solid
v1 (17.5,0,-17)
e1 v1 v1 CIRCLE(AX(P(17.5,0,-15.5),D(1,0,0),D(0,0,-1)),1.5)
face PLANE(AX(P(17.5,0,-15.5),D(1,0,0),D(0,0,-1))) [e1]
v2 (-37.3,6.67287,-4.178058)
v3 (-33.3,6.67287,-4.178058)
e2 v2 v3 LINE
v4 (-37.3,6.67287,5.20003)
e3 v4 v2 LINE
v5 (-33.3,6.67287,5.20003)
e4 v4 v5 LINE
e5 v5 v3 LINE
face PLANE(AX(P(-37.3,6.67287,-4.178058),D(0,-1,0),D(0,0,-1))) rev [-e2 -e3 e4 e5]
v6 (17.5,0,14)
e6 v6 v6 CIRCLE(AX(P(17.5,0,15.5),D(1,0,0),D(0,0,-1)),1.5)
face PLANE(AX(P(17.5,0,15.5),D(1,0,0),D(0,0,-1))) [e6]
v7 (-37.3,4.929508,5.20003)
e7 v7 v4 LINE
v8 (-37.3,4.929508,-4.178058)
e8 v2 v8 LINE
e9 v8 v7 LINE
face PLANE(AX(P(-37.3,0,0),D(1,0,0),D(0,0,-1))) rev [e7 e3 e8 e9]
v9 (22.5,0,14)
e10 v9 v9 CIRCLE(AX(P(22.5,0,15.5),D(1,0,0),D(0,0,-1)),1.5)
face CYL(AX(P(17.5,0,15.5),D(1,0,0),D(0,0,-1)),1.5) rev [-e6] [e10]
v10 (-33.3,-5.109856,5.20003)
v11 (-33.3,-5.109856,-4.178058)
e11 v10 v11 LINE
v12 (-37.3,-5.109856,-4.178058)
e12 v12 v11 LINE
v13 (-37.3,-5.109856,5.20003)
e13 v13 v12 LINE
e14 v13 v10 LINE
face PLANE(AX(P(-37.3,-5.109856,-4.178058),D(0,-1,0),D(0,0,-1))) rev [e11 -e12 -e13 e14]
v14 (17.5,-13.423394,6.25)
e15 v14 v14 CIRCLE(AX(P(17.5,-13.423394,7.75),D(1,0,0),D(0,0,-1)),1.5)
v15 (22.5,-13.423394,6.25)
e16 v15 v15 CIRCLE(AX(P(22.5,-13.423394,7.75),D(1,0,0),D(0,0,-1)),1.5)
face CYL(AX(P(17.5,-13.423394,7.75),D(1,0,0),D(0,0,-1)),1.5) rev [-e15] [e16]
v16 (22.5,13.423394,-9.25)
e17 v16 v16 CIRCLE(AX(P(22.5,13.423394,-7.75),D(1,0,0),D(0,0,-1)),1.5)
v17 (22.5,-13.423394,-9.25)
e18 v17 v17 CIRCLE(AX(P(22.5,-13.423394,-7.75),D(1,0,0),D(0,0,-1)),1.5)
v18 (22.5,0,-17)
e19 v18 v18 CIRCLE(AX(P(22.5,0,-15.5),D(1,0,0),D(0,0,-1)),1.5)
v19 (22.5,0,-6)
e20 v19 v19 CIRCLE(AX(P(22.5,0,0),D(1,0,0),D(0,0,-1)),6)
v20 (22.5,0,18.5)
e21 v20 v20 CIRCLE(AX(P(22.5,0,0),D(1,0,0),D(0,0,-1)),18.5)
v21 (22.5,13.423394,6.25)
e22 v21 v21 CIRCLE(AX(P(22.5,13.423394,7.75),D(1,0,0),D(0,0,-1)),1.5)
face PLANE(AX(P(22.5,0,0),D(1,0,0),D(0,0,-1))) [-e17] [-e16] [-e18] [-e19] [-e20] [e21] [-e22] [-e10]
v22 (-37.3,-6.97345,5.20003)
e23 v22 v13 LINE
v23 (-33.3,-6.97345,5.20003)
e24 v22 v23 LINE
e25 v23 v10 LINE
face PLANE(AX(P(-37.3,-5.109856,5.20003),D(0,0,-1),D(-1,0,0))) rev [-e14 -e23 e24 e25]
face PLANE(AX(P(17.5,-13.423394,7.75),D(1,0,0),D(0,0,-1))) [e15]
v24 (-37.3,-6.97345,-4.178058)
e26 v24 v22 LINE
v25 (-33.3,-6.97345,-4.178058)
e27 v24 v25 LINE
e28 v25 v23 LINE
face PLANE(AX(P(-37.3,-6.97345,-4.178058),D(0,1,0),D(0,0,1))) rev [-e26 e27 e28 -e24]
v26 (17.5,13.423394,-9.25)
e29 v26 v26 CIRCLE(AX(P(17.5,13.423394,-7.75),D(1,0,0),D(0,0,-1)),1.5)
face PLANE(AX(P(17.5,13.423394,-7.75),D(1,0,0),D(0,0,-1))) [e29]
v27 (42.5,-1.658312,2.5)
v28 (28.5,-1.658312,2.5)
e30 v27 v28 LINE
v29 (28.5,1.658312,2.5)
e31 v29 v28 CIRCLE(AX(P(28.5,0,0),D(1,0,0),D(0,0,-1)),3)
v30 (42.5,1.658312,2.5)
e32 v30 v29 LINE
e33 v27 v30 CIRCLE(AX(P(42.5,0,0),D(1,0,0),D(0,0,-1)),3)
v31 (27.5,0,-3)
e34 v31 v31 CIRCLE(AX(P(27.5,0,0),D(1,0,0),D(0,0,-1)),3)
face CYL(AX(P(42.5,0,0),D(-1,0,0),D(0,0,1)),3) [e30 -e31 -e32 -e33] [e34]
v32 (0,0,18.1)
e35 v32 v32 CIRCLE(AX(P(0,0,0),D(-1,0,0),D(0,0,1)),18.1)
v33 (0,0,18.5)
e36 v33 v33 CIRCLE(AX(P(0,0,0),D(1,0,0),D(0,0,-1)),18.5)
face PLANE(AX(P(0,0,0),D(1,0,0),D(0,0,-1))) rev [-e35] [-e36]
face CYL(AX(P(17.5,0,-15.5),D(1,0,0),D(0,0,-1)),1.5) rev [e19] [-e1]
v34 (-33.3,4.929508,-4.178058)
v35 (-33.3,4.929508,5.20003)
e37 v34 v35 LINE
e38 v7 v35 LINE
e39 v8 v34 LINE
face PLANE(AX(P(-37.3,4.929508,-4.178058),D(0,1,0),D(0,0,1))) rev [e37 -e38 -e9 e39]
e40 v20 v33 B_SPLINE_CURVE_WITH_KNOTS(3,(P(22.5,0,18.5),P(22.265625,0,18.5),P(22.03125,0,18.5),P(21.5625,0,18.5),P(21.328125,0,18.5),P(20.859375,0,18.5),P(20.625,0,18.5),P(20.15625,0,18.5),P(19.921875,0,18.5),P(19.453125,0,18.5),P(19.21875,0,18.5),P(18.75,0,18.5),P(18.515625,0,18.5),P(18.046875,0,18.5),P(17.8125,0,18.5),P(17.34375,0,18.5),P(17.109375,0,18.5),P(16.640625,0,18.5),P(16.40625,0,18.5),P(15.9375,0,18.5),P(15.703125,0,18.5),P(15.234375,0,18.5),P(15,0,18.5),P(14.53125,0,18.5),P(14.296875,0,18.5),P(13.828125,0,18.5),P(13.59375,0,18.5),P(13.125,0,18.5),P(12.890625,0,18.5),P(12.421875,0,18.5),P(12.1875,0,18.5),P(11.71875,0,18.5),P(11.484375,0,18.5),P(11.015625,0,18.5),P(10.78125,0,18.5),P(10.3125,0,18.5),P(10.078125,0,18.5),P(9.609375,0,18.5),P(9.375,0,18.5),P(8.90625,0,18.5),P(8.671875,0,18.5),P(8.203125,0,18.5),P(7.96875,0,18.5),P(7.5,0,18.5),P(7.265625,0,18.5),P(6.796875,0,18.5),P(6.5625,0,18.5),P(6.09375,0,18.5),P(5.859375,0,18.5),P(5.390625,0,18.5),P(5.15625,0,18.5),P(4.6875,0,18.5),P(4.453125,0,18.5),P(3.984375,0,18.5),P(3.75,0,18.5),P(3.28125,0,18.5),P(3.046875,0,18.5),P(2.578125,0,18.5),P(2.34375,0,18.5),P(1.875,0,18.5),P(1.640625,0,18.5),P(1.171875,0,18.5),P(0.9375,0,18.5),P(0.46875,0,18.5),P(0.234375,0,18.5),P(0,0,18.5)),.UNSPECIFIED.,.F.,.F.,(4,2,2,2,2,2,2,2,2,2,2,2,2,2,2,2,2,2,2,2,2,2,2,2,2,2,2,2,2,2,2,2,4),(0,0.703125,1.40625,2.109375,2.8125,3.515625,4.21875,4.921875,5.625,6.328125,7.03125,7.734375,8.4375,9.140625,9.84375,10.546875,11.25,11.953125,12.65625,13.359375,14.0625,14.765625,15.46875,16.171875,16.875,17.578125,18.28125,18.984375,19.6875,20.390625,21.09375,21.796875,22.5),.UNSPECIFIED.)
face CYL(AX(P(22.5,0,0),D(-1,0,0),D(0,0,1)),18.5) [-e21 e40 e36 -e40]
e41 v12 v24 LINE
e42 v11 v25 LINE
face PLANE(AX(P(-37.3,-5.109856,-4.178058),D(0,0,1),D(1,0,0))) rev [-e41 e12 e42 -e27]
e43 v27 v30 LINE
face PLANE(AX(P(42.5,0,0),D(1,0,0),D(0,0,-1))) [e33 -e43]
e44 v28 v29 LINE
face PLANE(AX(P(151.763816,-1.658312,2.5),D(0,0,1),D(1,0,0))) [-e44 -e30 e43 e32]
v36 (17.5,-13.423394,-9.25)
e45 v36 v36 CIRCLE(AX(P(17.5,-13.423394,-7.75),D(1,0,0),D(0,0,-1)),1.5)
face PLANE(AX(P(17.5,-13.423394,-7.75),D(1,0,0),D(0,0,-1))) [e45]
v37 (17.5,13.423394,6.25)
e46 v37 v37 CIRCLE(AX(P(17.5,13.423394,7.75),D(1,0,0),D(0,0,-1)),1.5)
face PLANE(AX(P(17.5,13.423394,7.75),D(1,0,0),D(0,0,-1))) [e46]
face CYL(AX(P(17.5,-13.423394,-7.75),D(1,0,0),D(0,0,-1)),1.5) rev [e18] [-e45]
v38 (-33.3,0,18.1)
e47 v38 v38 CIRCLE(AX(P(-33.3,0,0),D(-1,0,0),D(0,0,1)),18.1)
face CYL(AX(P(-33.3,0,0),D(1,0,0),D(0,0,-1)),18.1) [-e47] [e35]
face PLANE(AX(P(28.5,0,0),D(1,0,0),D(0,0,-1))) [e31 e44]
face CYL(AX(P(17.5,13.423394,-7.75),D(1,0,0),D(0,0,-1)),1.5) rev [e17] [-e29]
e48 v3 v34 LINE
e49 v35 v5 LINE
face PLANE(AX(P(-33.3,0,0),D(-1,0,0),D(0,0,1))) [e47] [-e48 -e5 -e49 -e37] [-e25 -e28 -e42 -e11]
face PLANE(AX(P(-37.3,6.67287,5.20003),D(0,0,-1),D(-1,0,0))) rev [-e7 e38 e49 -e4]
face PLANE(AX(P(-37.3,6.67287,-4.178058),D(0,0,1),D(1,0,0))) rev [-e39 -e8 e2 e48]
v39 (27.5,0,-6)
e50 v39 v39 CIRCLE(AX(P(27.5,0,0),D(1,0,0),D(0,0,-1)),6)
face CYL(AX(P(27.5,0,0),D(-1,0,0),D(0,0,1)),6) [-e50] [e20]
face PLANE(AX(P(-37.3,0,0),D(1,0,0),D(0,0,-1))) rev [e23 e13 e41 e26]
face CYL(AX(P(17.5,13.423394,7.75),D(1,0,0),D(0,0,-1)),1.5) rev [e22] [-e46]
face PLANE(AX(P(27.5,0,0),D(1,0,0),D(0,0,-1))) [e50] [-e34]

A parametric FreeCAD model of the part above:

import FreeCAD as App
import Part
import Sketcher
from FreeCAD import Vector

doc = App.newDocument("Part")
body = doc.addObject("PartDesign::Body", "Body")

# Sketch on YZ plane
sketch1 = body.newObject("Sketcher::SketchObject", "Sketch")
sketch1.AttachmentSupport = (doc.getObject("YZ_Plane"), [""])
sketch1.MapMode = "FlatFace"
sketch1.addGeometry(Part.Circle(Vector(0, 0, 0), Vector(0, 0, 1), 18.5), False)
sketch1.addConstraint([
    Sketcher.Constraint("Coincident", 0, 3, -1, 1),
    Sketcher.Constraint("Diameter", 0, 37.0),
])
pad1 = body.newObject("PartDesign::Pad", "Pad")
pad1.Profile = sketch1
pad1.Length = 22.5

# Sketch on YZ plane
sketch2 = body.newObject("Sketcher::SketchObject", "Sketch001")
sketch2.AttachmentSupport = (doc.getObject("YZ_Plane"), [""])
sketch2.MapMode = "FlatFace"
sketch2.AttachmentOffset = App.Placement(Vector(0, 0, 22.5), App.Rotation())
sketch2.addGeometry(Part.Circle(Vector(0, 0, 0), Vector(0, 0, 1), 6), False)
sketch2.addConstraint([
    Sketcher.Constraint("Coincident", 0, 3, -1, 1),
    Sketcher.Constraint("Diameter", 0, 12.0),
])
pad2 = body.newObject("PartDesign::Pad", "Pad001")
pad2.Profile = sketch2
pad2.Length = 5

# Sketch on YZ plane
sketch3 = body.newObject("Sketcher::SketchObject", "Sketch002")
sketch3.AttachmentSupport = (doc.getObject("YZ_Plane"), [""])
sketch3.MapMode = "FlatFace"
sketch3.AttachmentOffset = App.Placement(Vector(0, 0, 27.5), App.Rotation())
sketch3.addGeometry(Part.Circle(Vector(0, 0, 0), Vector(0, 0, 1), 3), False)
sketch3.addConstraint([
    Sketcher.Constraint("Coincident", 0, 3, -1, 1),
    Sketcher.Constraint("Diameter", 0, 6.0),
])
pad3 = body.newObject("PartDesign::Pad", "Pad002")
pad3.Profile = sketch3
pad3.Length = 15

# Sketch on YZ plane
sketch4 = body.newObject("Sketcher::SketchObject", "Sketch003")
sketch4.AttachmentSupport = (doc.getObject("YZ_Plane"), [""])
sketch4.MapMode = "FlatFace"
sketch4.AttachmentOffset = App.Placement(Vector(0, 0, 42.5), App.Rotation())
sketch4.addGeometry([
    Part.LineSegment(Vector(-69.877126, 2.5, 0), Vector(69.877126, 2.5, 0)),
    Part.LineSegment(Vector(69.877126, 2.5, 0), Vector(69.877126, 138.937627, 0)),
    Part.LineSegment(Vector(69.877126, 138.937627, 0), Vector(-69.877126, 138.937627, 0)),
    Part.LineSegment(Vector(-69.877126, 138.937627, 0), Vector(-69.877126, 2.5, 0)),
], False)
sketch4.addConstraint([
    Sketcher.Constraint("Coincident", 0, 2, 1, 1),
    Sketcher.Constraint("Coincident", 1, 2, 2, 1),
    Sketcher.Constraint("Coincident", 2, 2, 3, 1),
    Sketcher.Constraint("Coincident", 3, 2, 0, 1),
    Sketcher.Constraint("Horizontal", 0),
    Sketcher.Constraint("Vertical", 1),
    Sketcher.Constraint("Horizontal", 2),
    Sketcher.Constraint("Vertical", 3),
    Sketcher.Constraint("DistanceY", -1, 1, 0, 2, 2.5),
    Sketcher.Constraint("DistanceX", 0, 1, 0, 2, 139.754252),
    Sketcher.Constraint("DistanceY", 1, 1, 1, 2, 136.437627),
    Sketcher.Constraint("DistanceX", -1, 1, 0, 2, 69.877126),
])
pocket1 = body.newObject("PartDesign::Pocket", "Pocket")
pocket1.Profile = sketch4
pocket1.Type = "TwoLengths"
pocket1.Length = 50.907414
pocket1.Length2 = 14
pocket1.Reversed = True

# Sketch on YZ plane
sketch5 = body.newObject("Sketcher::SketchObject", "Sketch004")
sketch5.AttachmentSupport = (doc.getObject("YZ_Plane"), [""])
sketch5.MapMode = "FlatFace"
sketch5.addGeometry(Part.Circle(Vector(0, 0, 0), Vector(0, 0, 1), 18.1), False)
sketch5.addConstraint([
    Sketcher.Constraint("Coincident", 0, 3, -1, 1),
    Sketcher.Constraint("Diameter", 0, 36.2),
])
pad4 = body.newObject("PartDesign::Pad", "Pad003")
pad4.Profile = sketch5
pad4.Length = 33.3
pad4.Reversed = True

# Sketch on YZ plane
sketch6 = body.newObject("Sketcher::SketchObject", "Sketch005")
sketch6.AttachmentSupport = (doc.getObject("YZ_Plane"), [""])
sketch6.MapMode = "FlatFace"
sketch6.AttachmentOffset = App.Placement(Vector(0, 0, -33.3), App.Rotation())
sketch6.addGeometry([
    Part.LineSegment(Vector(6.67287, 5.20003, 0), Vector(6.67287, -4.178058, 0)),  # 0
    Part.LineSegment(Vector(6.67287, -4.178058, 0), Vector(4.929508, -4.178058, 0)),  # 1
    Part.LineSegment(Vector(4.929508, -4.178058, 0), Vector(4.929508, 5.20003, 0)),  # 2
    Part.LineSegment(Vector(4.929508, 5.20003, 0), Vector(6.67287, 5.20003, 0)),  # 3
    Part.LineSegment(Vector(-5.109856, 5.20003, 0), Vector(-5.109856, -4.178058, 0)),  # 4
    Part.LineSegment(Vector(-5.109856, -4.178058, 0), Vector(-6.97345, -4.178058, 0)),  # 5
    Part.LineSegment(Vector(-6.97345, -4.178058, 0), Vector(-6.97345, 5.20003, 0)),  # 6
    Part.LineSegment(Vector(-6.97345, 5.20003, 0), Vector(-5.109856, 5.20003, 0)),  # 7
], False)
sketch6.addConstraint([
    Sketcher.Constraint("Coincident", 0, 2, 1, 1),
    Sketcher.Constraint("Coincident", 1, 2, 2, 1),
    Sketcher.Constraint("Coincident", 2, 2, 3, 1),
    Sketcher.Constraint("Coincident", 3, 2, 0, 1),
    Sketcher.Constraint("Coincident", 4, 2, 5, 1),
    Sketcher.Constraint("Coincident", 5, 2, 6, 1),
    Sketcher.Constraint("Coincident", 6, 2, 7, 1),
    Sketcher.Constraint("Coincident", 7, 2, 4, 1),
    Sketcher.Constraint("Vertical", 0),
    Sketcher.Constraint("Horizontal", 1),
    Sketcher.Constraint("Vertical", 2),
    Sketcher.Constraint("Horizontal", 3),
    Sketcher.Constraint("Vertical", 4),
    Sketcher.Constraint("Horizontal", 5),
    Sketcher.Constraint("Vertical", 6),
    Sketcher.Constraint("Horizontal", 7),
    Sketcher.Constraint("Horizontal", 1, 2, 4, 2),
    Sketcher.Constraint("Horizontal", 3, 2, 6, 2),
    Sketcher.Constraint("DistanceX", 1, 2, 1, 1, 1.743363),
    Sketcher.Constraint("DistanceX", 5, 2, 5, 1, 1.863594),
    Sketcher.Constraint("DistanceY", 0, 2, 0, 1, 9.378088),
    Sketcher.Constraint("DistanceX", -1, 1, 0, 2, 6.67287),
    Sketcher.Constraint("DistanceY", 0, 2, -1, 1, 4.178058),
    Sketcher.Constraint("DistanceX", 5, 2, -1, 1, 6.97345),
])
pad5 = body.newObject("PartDesign::Pad", "Pad004")
pad5.Profile = sketch6
pad5.Length = 4
pad5.Reversed = True

# Sketch on YZ plane
sketch7 = body.newObject("Sketcher::SketchObject", "Sketch006")
sketch7.AttachmentSupport = (doc.getObject("YZ_Plane"), [""])
sketch7.MapMode = "FlatFace"
sketch7.AttachmentOffset = App.Placement(Vector(0, 0, 22.5), App.Rotation())
sketch7.addGeometry([
    Part.Circle(Vector(0, 15.5, 0), Vector(0, 0, 1), 1.5),  # 0
    Part.Circle(Vector(13.423394, 7.75, 0), Vector(0, 0, 1), 1.5),  # 1
    Part.Circle(Vector(13.423394, -7.75, 0), Vector(0, 0, 1), 1.5),  # 2
    Part.Circle(Vector(0, -15.5, 0), Vector(0, 0, 1), 1.5),  # 3
    Part.Circle(Vector(-13.423394, -7.75, 0), Vector(0, 0, 1), 1.5),  # 4
    Part.Circle(Vector(-13.423394, 7.75, 0), Vector(0, 0, 1), 1.5),  # 5
], False)
sketch7.addConstraint([
    Sketcher.Constraint("Equal", 0, 1),
    Sketcher.Constraint("Equal", 1, 2),
    Sketcher.Constraint("Equal", 2, 3),
    Sketcher.Constraint("Equal", 3, 4),
    Sketcher.Constraint("Equal", 4, 5),
    Sketcher.Constraint("Symmetric", 0, 3, 3, 3, -1, 1),
    Sketcher.Constraint("Symmetric", 1, 3, 4, 3, -1, 1),
    Sketcher.Constraint("Symmetric", 2, 3, 5, 3, -1, 1),
    Sketcher.Constraint("Symmetric", 2, 3, 4, 3, -2),
    Sketcher.Constraint("PointOnObject", 0, 3, -2),
    Sketcher.Constraint("Diameter", 0, 3.0),
    Sketcher.Constraint("DistanceY", 3, 3, 0, 3, 31.0),
    Sketcher.Constraint("DistanceY", 2, 3, 1, 3, 15.5),
    Sketcher.Constraint("DistanceX", -1, 1, 1, 3, 13.423394),
])
pocket2 = body.newObject("PartDesign::Pocket", "Pocket001")
pocket2.Profile = sketch7
pocket2.Length = 5

doc.recompute()
